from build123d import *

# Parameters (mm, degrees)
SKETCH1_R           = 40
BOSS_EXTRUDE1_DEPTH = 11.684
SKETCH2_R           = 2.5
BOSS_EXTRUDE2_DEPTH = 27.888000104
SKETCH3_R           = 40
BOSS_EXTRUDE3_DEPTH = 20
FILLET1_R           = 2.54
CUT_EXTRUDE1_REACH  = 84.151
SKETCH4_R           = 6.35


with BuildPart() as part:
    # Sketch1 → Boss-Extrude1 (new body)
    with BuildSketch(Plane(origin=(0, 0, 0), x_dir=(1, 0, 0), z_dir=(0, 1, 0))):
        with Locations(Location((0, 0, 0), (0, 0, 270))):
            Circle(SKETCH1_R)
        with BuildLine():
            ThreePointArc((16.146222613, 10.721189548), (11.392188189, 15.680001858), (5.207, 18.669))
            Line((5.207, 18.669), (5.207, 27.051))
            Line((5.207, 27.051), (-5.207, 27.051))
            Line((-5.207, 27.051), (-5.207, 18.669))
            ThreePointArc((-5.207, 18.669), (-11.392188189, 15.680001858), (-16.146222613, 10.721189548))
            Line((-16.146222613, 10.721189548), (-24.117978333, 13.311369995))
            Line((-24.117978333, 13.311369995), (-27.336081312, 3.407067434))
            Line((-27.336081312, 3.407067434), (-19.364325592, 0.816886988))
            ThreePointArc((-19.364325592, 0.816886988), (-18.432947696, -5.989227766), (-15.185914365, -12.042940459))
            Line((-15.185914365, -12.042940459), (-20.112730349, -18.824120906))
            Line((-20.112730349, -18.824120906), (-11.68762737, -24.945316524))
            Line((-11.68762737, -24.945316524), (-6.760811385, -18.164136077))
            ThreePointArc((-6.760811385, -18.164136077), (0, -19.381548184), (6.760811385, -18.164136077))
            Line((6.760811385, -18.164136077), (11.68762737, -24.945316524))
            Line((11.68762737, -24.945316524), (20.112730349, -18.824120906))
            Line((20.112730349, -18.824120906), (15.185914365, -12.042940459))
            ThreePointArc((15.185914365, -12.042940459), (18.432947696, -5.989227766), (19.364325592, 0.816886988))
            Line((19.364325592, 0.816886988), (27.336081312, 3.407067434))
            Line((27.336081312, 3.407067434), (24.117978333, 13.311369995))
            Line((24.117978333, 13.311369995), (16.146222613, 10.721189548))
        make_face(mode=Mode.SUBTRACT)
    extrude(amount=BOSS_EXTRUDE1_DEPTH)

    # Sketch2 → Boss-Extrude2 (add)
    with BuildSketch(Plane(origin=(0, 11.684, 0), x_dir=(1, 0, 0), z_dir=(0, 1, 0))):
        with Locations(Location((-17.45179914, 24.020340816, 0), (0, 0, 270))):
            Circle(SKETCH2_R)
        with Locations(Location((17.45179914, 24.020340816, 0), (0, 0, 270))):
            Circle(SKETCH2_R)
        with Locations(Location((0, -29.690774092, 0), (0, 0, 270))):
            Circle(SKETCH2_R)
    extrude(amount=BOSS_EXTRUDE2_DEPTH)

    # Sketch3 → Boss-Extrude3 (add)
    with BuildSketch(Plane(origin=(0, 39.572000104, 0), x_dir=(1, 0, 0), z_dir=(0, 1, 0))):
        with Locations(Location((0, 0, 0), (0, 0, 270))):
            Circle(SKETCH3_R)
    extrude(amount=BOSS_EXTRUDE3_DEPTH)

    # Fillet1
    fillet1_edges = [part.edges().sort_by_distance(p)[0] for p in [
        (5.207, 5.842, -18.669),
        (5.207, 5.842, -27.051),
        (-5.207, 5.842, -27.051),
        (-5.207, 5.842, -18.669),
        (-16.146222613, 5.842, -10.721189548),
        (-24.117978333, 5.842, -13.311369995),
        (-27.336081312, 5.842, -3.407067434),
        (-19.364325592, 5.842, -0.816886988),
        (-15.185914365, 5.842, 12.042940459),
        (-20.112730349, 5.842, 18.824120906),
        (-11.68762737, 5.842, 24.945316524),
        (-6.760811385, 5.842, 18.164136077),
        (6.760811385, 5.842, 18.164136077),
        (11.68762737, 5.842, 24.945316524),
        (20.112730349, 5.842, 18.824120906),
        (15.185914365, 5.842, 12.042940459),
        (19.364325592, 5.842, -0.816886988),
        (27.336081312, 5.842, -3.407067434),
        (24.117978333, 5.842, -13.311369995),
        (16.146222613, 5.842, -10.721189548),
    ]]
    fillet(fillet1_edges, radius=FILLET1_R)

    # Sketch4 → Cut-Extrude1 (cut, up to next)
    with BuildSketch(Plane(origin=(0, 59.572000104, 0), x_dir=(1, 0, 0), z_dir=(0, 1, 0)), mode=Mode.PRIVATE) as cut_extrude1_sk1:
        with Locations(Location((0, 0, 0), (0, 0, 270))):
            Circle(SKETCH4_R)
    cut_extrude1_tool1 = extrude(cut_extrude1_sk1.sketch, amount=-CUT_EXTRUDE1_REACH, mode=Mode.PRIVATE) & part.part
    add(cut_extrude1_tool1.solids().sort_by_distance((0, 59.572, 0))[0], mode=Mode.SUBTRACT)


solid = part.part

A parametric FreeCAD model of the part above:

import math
import FreeCAD as App
import Part
import Sketcher
from FreeCAD import Vector
Q = App.Units.Quantity


def edges_at(feature, points):
    """Names of the edges that pass closest to the given points."""
    edges = feature.Shape.Edges
    near = lambda p: min(range(len(edges)), key=lambda i: edges[i].distToShape(Part.Vertex(*p))[0])
    return sorted({f"Edge{near(p) + 1}" for p in points})

doc = App.newDocument("Part")
body = doc.addObject("PartDesign::Body", "Body")

sketch1 = body.newObject("Sketcher::SketchObject", "Sketch")
sketch1.AttachmentSupport = (doc.getObject("XZ_Plane"), [""])
sketch1.MapMode = "FlatFace"
sketch1.addGeometry([
    Part.Circle(Vector(0, 0, 0), Vector(0, 0, 1), 40),
    Part.ArcOfCircle(Part.Circle(Vector(0, 0, 0), Vector(0, 0, 1), 19.381548), math.radians(-74.415599), math.radians(-33.584401)),
    Part.LineSegment(Vector(16.146223, -10.72119, 0), Vector(24.117978, -13.31137, 0)),
    Part.LineSegment(Vector(24.117978, -13.31137, 0), Vector(27.336081, -3.407067, 0)),
    Part.LineSegment(Vector(27.336081, -3.407067, 0), Vector(19.364326, -0.816887, 0)),
    Part.ArcOfCircle(Part.Circle(Vector(0, 0, 0), Vector(0, 0, 1), 19.381548), math.radians(-2.415599), math.radians(38.415599)),
    Part.LineSegment(Vector(15.185914, 12.04294, 0), Vector(20.11273, 18.824121, 0)),
    Part.LineSegment(Vector(20.11273, 18.824121, 0), Vector(11.687627, 24.945317, 0)),
    Part.LineSegment(Vector(11.687627, 24.945317, 0), Vector(6.760811, 18.164136, 0)),
    Part.ArcOfCircle(Part.Circle(Vector(0, 0, 0), Vector(0, 0, 1), 19.381548), math.radians(69.584401), math.radians(110.415599)),
    Part.LineSegment(Vector(-6.760811, 18.164136, 0), Vector(-11.687627, 24.945317, 0)),
    Part.LineSegment(Vector(-11.687627, 24.945317, 0), Vector(-20.11273, 18.824121, 0)),
    Part.LineSegment(Vector(-20.11273, 18.824121, 0), Vector(-15.185914, 12.04294, 0)),
    Part.ArcOfCircle(Part.Circle(Vector(0, 0, 0), Vector(0, 0, 1), 19.381548), math.radians(141.584401), math.radians(182.415599)),
    Part.LineSegment(Vector(-19.364326, -0.816887, 0), Vector(-27.336081, -3.407067, 0)),
    Part.LineSegment(Vector(-27.336081, -3.407067, 0), Vector(-24.117978, -13.31137, 0)),
    Part.LineSegment(Vector(-24.117978, -13.31137, 0), Vector(-16.146223, -10.72119, 0)),
    Part.ArcOfCircle(Part.Circle(Vector(0, 0, 0), Vector(0, 0, 1), 19.381548), math.radians(-146.415599), math.radians(-105.584401)),
    Part.LineSegment(Vector(-5.207, -18.669, 0), Vector(-5.207, -27.051, 0)),
    Part.LineSegment(Vector(-5.207, -27.051, 0), Vector(5.207, -27.051, 0)),
    Part.LineSegment(Vector(5.207, -27.051, 0), Vector(5.207, -18.669, 0)),
], False)
sketch1.addConstraint([
    Sketcher.Constraint("Coincident", 1, 2, 2, 1),
    Sketcher.Constraint("Coincident", 2, 2, 3, 1),
    Sketcher.Constraint("Coincident", 3, 2, 4, 1),
    Sketcher.Constraint("Coincident", 4, 2, 5, 1),
    Sketcher.Constraint("Coincident", 5, 2, 6, 1),
    Sketcher.Constraint("Coincident", 6, 2, 7, 1),
    Sketcher.Constraint("Coincident", 7, 2, 8, 1),
    Sketcher.Constraint("Coincident", 8, 2, 9, 1),
    Sketcher.Constraint("Coincident", 9, 2, 10, 1),
    Sketcher.Constraint("Coincident", 10, 2, 11, 1),
    Sketcher.Constraint("Coincident", 11, 2, 12, 1),
    Sketcher.Constraint("Coincident", 12, 2, 13, 1),
    Sketcher.Constraint("Coincident", 13, 2, 14, 1),
    Sketcher.Constraint("Coincident", 14, 2, 15, 1),
    Sketcher.Constraint("Coincident", 15, 2, 16, 1),
    Sketcher.Constraint("Coincident", 16, 2, 17, 1),
    Sketcher.Constraint("Coincident", 17, 2, 18, 1),
    Sketcher.Constraint("Coincident", 18, 2, 19, 1),
    Sketcher.Constraint("Coincident", 19, 2, 20, 1),
    Sketcher.Constraint("Coincident", 20, 2, 1, 1),
    Sketcher.Constraint("Vertical", 18),
    Sketcher.Constraint("Horizontal", 19),
    Sketcher.Constraint("Vertical", 20),
    Sketcher.Constraint("Coincident", 0, 3, -1, 1),
    Sketcher.Constraint("Coincident", 1, 3, -1, 1),
    Sketcher.Constraint("Coincident", 5, 3, -1, 1),
    Sketcher.Constraint("Coincident", 9, 3, -1, 1),
    Sketcher.Constraint("Coincident", 13, 3, -1, 1),
    Sketcher.Constraint("Coincident", 17, 3, -1, 1),
    Sketcher.Constraint("Equal", 1, 5),
    Sketcher.Constraint("Equal", 5, 9),
    Sketcher.Constraint("Equal", 9, 13),
    Sketcher.Constraint("Equal", 13, 17),
    Sketcher.Constraint("Symmetric", 7, 2, 10, 2, -2),
    Sketcher.Constraint("Symmetric", 6, 2, 11, 2, -2),
    Sketcher.Constraint("Symmetric", 3, 2, 14, 2, -2),
    Sketcher.Constraint("Symmetric", 2, 2, 15, 2, -2),
    Sketcher.Constraint("Perpendicular", 2, 3),
    Sketcher.Constraint("Perpendicular", 3, 4),
    Sketcher.Constraint("Perpendicular", 6, 7),
    Sketcher.Constraint("Perpendicular", 7, 8),
    Sketcher.Constraint("Perpendicular", 10, 11),
    Sketcher.Constraint("Perpendicular", 11, 12),
    Sketcher.Constraint("Perpendicular", 14, 15),
    Sketcher.Constraint("Perpendicular", 15, 16),
    Sketcher.Constraint("Horizontal", 17, 2, 20, 2),
    Sketcher.Constraint("Equal", 2, 4),
    Sketcher.Constraint("Equal", 4, 6),
    Sketcher.Constraint("Equal", 3, 7),
    Sketcher.Constraint("Equal", 6, 8),
    Sketcher.Constraint("Angle", 2, Q("-18 deg")),
    Sketcher.Constraint("Angle", 6, Q("54 deg")),
    Sketcher.Constraint("DistanceX", 19, 1, 19, 2, Q("0.41 in")),
    Sketcher.Constraint("DistanceY", 18, 2, 18, 1, Q("0.33 in")),
    Sketcher.Constraint("Distance", 2, Q("0.33 in")),
    Sketcher.Constraint("Distance", 3, Q("0.41 in")),
    Sketcher.Constraint("Diameter", 0, 80.0),
    Sketcher.Constraint("DistanceY", 17, 2, -1, 1, Q("0.735 in")),
])
pad1 = body.newObject("PartDesign::Pad", "Pad")
pad1.Profile = sketch1
pad1.Length = Q("0.46 in")
pad1.Reversed = True

sketch2 = body.newObject("Sketcher::SketchObject", "Sketch001")
sketch2.AttachmentSupport = (doc.getObject("XZ_Plane"), [""])
sketch2.MapMode = "FlatFace"
sketch2.AttachmentOffset = App.Placement(Vector(0, 0, -0.46 * 25.4), App.Rotation())
sketch2.addGeometry([
    Part.Circle(Vector(-17.451799, -24.020341, 0), Vector(0, 0, 1), 2.5),
    Part.Circle(Vector(17.451799, -24.020341, 0), Vector(0, 0, 1), 2.5),
    Part.Circle(Vector(0, 29.690774, 0), Vector(0, 0, 1), 2.5),
], False)
sketch2.addConstraint([
    Sketcher.Constraint("Equal", 0, 1),
    Sketcher.Constraint("Equal", 1, 2),
    Sketcher.Constraint("Symmetric", 0, 3, 1, 3, -2),
    Sketcher.Constraint("PointOnObject", 2, 3, -2),
    Sketcher.Constraint("Diameter", 0, 5.0),
    Sketcher.Constraint("DistanceX", 0, 3, -1, 1, 17.451799),
    Sketcher.Constraint("DistanceY", 0, 3, -1, 1, 24.020341),
    Sketcher.Constraint("DistanceY", -1, 1, 2, 3, 29.690774),
])
pad2 = body.newObject("PartDesign::Pad", "Pad001")
pad2.Profile = sketch2
pad2.Length = 27.888
pad2.Reversed = True

sketch3 = body.newObject("Sketcher::SketchObject", "Sketch002")
sketch3.AttachmentSupport = (doc.getObject("XZ_Plane"), [""])
sketch3.MapMode = "FlatFace"
sketch3.AttachmentOffset = App.Placement(Vector(0, 0, -39.572), App.Rotation())
sketch3.addGeometry(Part.Circle(Vector(0, 0, 0), Vector(0, 0, 1), 40), False)
sketch3.addConstraint([
    Sketcher.Constraint("Coincident", 0, 3, -1, 1),
    Sketcher.Constraint("Diameter", 0, 80.0),
])
pad3 = body.newObject("PartDesign::Pad", "Pad002")
pad3.Profile = sketch3
pad3.Length = 20
pad3.Reversed = True
doc.recompute()

fillet = body.newObject("PartDesign::Fillet", "Fillet")
fillet.Base = (pad3, edges_at(pad3, [
    (5.207, 5.842, -18.669),
    (5.207, 5.842, -27.051),
    (-5.207, 5.842, -27.051),
    (-5.207, 5.842, -18.669),
    (-16.146, 5.842, -10.721),
    (-24.118, 5.842, -13.311),
    (-27.336, 5.842, -3.407),
    (-19.364, 5.842, -0.817),
    (-15.186, 5.842, 12.043),
    (-20.113, 5.842, 18.824),
    (-11.688, 5.842, 24.945),
    (-6.761, 5.842, 18.164),
    (6.761, 5.842, 18.164),
    (11.688, 5.842, 24.945),
    (20.113, 5.842, 18.824),
    (15.186, 5.842, 12.043),
    (19.364, 5.842, -0.817),
    (27.336, 5.842, -3.407),
    (24.118, 5.842, -13.311),
    (16.146, 5.842, -10.721),
]))
fillet.Radius = Q("0.1 in")

sketch4 = body.newObject("Sketcher::SketchObject", "Sketch003")
sketch4.AttachmentSupport = (doc.getObject("XZ_Plane"), [""])
sketch4.MapMode = "FlatFace"
sketch4.AttachmentOffset = App.Placement(Vector(0, 0, -59.572), App.Rotation())
sketch4.addGeometry(Part.Circle(Vector(0, 0, 0), Vector(0, 0, 1), 6.35), False)
sketch4.addConstraint([
    Sketcher.Constraint("Coincident", 0, 3, -1, 1),
    Sketcher.Constraint("Diameter", 0, Q("0.5 in")),
])
pocket1 = body.newObject("PartDesign::Pocket", "Pocket")
pocket1.Profile = sketch4
pocket1.Type = "UpToFirst"
pocket1.Reversed = True

doc.recompute()
